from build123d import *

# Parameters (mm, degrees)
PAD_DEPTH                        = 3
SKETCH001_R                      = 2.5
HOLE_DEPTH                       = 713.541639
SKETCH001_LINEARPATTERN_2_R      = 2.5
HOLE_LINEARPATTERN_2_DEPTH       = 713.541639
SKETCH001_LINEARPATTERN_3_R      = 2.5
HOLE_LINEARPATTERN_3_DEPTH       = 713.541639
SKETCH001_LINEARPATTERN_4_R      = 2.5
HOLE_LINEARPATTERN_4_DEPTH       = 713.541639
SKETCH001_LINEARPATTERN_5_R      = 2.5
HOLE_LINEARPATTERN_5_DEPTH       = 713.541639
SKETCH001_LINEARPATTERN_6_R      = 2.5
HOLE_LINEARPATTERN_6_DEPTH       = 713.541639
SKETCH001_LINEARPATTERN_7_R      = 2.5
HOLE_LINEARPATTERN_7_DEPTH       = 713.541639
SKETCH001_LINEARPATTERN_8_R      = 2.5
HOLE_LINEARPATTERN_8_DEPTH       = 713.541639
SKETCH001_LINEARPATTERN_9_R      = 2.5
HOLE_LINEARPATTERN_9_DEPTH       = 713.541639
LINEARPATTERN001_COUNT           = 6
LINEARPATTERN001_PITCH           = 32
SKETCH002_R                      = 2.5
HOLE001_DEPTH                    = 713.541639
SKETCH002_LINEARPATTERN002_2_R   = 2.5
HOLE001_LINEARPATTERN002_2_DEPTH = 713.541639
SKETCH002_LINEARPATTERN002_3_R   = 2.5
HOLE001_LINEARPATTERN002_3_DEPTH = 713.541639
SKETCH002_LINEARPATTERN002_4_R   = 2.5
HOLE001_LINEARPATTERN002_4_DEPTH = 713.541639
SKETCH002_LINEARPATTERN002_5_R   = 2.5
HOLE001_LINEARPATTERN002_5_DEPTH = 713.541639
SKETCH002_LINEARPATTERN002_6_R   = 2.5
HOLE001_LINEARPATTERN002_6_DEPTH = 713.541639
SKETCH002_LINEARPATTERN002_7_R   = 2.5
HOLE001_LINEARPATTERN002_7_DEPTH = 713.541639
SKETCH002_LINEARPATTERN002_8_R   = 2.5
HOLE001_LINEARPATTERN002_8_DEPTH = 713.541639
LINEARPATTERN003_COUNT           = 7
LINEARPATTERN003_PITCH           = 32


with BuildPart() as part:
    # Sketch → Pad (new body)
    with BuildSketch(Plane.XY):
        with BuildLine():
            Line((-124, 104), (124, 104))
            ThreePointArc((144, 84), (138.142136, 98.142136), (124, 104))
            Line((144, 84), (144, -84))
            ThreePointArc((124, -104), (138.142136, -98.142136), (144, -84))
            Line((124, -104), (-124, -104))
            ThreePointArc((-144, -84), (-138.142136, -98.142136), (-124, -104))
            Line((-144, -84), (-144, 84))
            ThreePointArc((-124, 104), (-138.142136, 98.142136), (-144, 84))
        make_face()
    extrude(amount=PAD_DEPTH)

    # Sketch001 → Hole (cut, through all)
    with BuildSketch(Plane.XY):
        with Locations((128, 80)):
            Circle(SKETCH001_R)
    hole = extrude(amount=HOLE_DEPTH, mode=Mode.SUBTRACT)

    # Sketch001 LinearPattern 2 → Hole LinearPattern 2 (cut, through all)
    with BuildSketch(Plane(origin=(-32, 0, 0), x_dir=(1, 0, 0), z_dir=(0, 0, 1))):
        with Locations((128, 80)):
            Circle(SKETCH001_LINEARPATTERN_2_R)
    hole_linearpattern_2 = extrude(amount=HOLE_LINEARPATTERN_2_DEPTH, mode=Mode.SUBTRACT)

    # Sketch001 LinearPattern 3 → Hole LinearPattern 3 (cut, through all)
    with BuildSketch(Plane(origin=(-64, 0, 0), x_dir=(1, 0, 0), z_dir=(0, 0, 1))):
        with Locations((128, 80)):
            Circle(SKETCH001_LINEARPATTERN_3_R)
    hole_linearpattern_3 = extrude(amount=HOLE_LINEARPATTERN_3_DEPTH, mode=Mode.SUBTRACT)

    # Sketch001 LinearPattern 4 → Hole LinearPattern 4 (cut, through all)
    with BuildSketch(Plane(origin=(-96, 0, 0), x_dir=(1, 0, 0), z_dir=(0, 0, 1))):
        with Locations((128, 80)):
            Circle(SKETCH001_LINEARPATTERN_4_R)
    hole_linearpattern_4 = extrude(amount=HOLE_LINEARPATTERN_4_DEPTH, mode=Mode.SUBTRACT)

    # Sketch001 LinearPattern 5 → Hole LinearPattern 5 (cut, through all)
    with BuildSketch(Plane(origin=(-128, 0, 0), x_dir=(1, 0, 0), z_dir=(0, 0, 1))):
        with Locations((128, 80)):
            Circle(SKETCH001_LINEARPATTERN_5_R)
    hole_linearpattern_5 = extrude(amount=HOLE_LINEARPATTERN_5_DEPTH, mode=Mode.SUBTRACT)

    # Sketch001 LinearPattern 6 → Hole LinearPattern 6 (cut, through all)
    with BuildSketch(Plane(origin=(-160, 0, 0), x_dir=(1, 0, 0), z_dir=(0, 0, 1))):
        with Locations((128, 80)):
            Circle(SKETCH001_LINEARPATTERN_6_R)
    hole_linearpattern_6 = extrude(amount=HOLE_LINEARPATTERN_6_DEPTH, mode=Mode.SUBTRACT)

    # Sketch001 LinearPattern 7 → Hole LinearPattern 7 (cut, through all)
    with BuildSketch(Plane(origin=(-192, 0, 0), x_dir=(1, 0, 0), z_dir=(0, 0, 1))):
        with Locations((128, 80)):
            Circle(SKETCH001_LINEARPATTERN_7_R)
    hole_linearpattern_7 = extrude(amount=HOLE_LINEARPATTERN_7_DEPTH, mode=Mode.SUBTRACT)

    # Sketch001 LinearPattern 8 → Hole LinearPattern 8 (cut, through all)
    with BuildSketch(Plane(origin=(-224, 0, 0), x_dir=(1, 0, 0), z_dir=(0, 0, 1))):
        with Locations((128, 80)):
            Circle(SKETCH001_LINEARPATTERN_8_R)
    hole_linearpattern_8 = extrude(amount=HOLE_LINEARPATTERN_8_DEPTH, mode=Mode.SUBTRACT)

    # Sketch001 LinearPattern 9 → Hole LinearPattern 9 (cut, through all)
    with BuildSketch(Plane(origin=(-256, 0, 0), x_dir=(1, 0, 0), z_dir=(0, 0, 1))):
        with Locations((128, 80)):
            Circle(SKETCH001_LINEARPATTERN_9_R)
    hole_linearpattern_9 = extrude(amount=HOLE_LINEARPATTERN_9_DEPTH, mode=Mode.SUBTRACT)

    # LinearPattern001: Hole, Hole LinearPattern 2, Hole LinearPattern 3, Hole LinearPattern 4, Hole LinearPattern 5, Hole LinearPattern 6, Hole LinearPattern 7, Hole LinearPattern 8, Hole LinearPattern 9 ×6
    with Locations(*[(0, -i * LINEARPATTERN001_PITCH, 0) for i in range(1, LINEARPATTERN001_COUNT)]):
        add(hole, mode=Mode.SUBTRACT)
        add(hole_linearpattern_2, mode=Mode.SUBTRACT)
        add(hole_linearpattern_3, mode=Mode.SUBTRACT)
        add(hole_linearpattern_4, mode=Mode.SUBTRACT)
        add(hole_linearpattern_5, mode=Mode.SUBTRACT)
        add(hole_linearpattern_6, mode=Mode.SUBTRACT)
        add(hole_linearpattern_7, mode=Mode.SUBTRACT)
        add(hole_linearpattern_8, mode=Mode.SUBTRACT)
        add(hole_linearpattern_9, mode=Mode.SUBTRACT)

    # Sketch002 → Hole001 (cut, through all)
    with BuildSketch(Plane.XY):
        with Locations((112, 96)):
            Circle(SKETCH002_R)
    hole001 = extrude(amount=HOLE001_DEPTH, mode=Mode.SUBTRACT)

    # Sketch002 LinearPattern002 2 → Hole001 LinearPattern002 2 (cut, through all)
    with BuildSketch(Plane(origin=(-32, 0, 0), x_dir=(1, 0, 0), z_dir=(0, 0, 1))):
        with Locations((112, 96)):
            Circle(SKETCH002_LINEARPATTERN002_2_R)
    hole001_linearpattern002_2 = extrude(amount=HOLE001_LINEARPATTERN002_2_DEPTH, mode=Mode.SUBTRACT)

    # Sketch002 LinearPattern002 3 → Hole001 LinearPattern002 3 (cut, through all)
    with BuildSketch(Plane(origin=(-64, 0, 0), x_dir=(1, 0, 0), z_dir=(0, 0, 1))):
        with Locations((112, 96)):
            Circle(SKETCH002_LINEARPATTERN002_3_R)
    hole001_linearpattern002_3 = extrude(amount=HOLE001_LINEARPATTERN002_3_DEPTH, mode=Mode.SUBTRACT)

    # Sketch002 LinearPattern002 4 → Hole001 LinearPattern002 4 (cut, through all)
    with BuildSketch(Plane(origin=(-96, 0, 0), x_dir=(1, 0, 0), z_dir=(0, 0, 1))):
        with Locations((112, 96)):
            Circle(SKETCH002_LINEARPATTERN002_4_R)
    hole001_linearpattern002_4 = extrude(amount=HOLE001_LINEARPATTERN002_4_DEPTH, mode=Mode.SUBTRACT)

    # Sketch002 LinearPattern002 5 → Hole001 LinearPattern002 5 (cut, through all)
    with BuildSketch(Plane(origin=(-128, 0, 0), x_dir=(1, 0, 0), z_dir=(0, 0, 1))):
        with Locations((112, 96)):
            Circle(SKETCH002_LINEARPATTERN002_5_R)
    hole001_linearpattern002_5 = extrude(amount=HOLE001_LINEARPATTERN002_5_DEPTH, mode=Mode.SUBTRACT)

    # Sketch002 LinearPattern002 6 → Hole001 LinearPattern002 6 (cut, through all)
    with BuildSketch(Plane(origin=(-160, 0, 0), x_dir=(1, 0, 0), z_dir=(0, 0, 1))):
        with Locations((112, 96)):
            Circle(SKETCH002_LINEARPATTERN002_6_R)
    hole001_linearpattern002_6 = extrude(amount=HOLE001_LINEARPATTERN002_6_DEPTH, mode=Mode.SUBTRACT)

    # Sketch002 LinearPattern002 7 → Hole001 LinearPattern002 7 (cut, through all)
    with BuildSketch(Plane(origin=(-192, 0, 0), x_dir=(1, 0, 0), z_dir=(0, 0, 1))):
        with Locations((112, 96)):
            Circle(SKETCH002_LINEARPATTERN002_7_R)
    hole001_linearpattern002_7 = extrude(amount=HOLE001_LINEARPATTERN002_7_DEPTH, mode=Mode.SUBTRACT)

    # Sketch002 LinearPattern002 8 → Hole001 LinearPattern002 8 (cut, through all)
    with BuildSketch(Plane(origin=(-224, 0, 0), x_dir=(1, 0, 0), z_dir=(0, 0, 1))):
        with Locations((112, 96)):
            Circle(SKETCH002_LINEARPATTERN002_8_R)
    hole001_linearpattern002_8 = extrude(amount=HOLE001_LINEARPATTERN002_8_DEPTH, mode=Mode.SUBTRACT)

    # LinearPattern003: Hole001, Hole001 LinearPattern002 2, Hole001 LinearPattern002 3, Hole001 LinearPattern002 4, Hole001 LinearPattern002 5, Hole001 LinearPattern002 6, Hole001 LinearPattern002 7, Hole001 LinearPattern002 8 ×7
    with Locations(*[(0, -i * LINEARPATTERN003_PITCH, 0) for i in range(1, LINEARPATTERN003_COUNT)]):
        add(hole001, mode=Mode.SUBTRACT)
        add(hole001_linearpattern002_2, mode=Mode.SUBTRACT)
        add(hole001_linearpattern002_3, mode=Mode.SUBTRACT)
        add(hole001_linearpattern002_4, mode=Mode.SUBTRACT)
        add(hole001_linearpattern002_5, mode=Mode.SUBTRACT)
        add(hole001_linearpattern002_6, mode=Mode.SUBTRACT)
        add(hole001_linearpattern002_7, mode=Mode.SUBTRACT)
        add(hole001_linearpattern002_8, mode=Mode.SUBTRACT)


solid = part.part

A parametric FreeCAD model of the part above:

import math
import FreeCAD as App
import Part
import Sketcher
from FreeCAD import Vector
Q = App.Units.Quantity

doc = App.newDocument("Part")
body = doc.addObject("PartDesign::Body", "Body")

sketch1 = body.newObject("Sketcher::SketchObject", "Sketch")
sketch1.AttachmentSupport = (doc.getObject("XY_Plane"), [""])
sketch1.MapMode = "FlatFace"
sketch1.addGeometry([
    Part.LineSegment(Vector(124, 104, 0), Vector(-124, 104, 0)),
    Part.ArcOfCircle(Part.Circle(Vector(-124, 84, 0), Vector(0, 0, 1), 20), math.radians(90), math.radians(180)),
    Part.LineSegment(Vector(-144, 84, 0), Vector(-144, -84, 0)),
    Part.ArcOfCircle(Part.Circle(Vector(-124, -84, 0), Vector(0, 0, 1), 20), math.radians(180), math.radians(270)),
    Part.LineSegment(Vector(-124, -104, 0), Vector(124, -104, 0)),
    Part.ArcOfCircle(Part.Circle(Vector(124, -84, 0), Vector(0, 0, 1), 20), math.radians(-90), math.radians(0)),
    Part.LineSegment(Vector(144, -84, 0), Vector(144, 84, 0)),
    Part.ArcOfCircle(Part.Circle(Vector(124, 84, 0), Vector(0, 0, 1), 20), math.radians(0), math.radians(90)),
], False)
sketch1.addConstraint([
    Sketcher.Constraint("Tangent", 0, 2, 1, 1),
    Sketcher.Constraint("Tangent", 1, 2, 2, 1),
    Sketcher.Constraint("Tangent", 2, 2, 3, 1),
    Sketcher.Constraint("Tangent", 3, 2, 4, 1),
    Sketcher.Constraint("Tangent", 4, 2, 5, 1),
    Sketcher.Constraint("Tangent", 5, 2, 6, 1),
    Sketcher.Constraint("Tangent", 6, 2, 7, 1),
    Sketcher.Constraint("Tangent", 7, 2, 0, 1),
    Sketcher.Constraint("Horizontal", 0),
    Sketcher.Constraint("Vertical", 2),
    Sketcher.Constraint("Horizontal", 4),
    Sketcher.Constraint("Vertical", 6),
    Sketcher.Constraint("Equal", 1, 3),
    Sketcher.Constraint("Equal", 3, 5),
    Sketcher.Constraint("Equal", 5, 7),
    Sketcher.Constraint("Symmetric", 1, 3, 5, 3, -1, 1),
    Sketcher.Constraint("Radius", 1, Q("19.999999 mm")),
    Sketcher.Constraint("DistanceX", 0, 2, 0, 1, Q("248 mm")),
    Sketcher.Constraint("DistanceY", 2, 2, 2, 1, Q("168 mm")),
])
pad1 = body.newObject("PartDesign::Pad", "Pad")
pad1.Profile = sketch1
pad1.Length = 3

sketch2 = body.newObject("Sketcher::SketchObject", "Sketch001")
sketch2.AttachmentSupport = (doc.getObject("XY_Plane"), [""])
sketch2.MapMode = "FlatFace"
sketch2.addGeometry(Part.Circle(Vector(128, 80, 0), Vector(0, 0, 1), 2.5), False)
sketch2.addConstraint([
    Sketcher.Constraint("Diameter", 0, Q("5 mm")),
    Sketcher.Constraint("DistanceX", -1, 1, 0, 3, Q("128 mm")),
    Sketcher.Constraint("DistanceY", -1, 1, 0, 3, Q("80 mm")),
])
pocket1 = body.newObject("PartDesign::Pocket", "Pocket")
pocket1.Profile = sketch2
pocket1.Type = "ThroughAll"
pocket1.Reversed = True

sketch3 = body.newObject("Sketcher::SketchObject", "Sketch002")
sketch3.AttachmentSupport = (doc.getObject("XY_Plane"), [""])
sketch3.MapMode = "FlatFace"
sketch3.addGeometry(Part.Circle(Vector(96, 80, 0), Vector(0, 0, 1), 2.5), False)
sketch3.addConstraint([
    Sketcher.Constraint("Diameter", 0, Q("5 mm")),
    Sketcher.Constraint("DistanceX", -1, 1, 0, 3, Q("96 mm")),
    Sketcher.Constraint("DistanceY", -1, 1, 0, 3, Q("80 mm")),
])
pocket2 = body.newObject("PartDesign::Pocket", "Pocket001")
pocket2.Profile = sketch3
pocket2.Type = "ThroughAll"
pocket2.Reversed = True

sketch4 = body.newObject("Sketcher::SketchObject", "Sketch003")
sketch4.AttachmentSupport = (doc.getObject("XY_Plane"), [""])
sketch4.MapMode = "FlatFace"
sketch4.addGeometry(Part.Circle(Vector(64, 80, 0), Vector(0, 0, 1), 2.5), False)
sketch4.addConstraint([
    Sketcher.Constraint("Diameter", 0, Q("5 mm")),
    Sketcher.Constraint("DistanceX", -1, 1, 0, 3, Q("64 mm")),
    Sketcher.Constraint("DistanceY", -1, 1, 0, 3, Q("80 mm")),
])
pocket3 = body.newObject("PartDesign::Pocket", "Pocket002")
pocket3.Profile = sketch4
pocket3.Type = "ThroughAll"
pocket3.Reversed = True

sketch5 = body.newObject("Sketcher::SketchObject", "Sketch004")
sketch5.AttachmentSupport = (doc.getObject("XY_Plane"), [""])
sketch5.MapMode = "FlatFace"
sketch5.addGeometry(Part.Circle(Vector(32, 80, 0), Vector(0, 0, 1), 2.5), False)
sketch5.addConstraint([
    Sketcher.Constraint("Diameter", 0, Q("5 mm")),
    Sketcher.Constraint("DistanceX", -1, 1, 0, 3, Q("32 mm")),
    Sketcher.Constraint("DistanceY", -1, 1, 0, 3, Q("80 mm")),
])
pocket4 = body.newObject("PartDesign::Pocket", "Pocket003")
pocket4.Profile = sketch5
pocket4.Type = "ThroughAll"
pocket4.Reversed = True

sketch6 = body.newObject("Sketcher::SketchObject", "Sketch005")
sketch6.AttachmentSupport = (doc.getObject("XY_Plane"), [""])
sketch6.MapMode = "FlatFace"
sketch6.addGeometry(Part.Circle(Vector(0, 80, 0), Vector(0, 0, 1), 2.5), False)
sketch6.addConstraint([
    Sketcher.Constraint("PointOnObject", 0, 3, -2),
    Sketcher.Constraint("Diameter", 0, Q("5 mm")),
    Sketcher.Constraint("DistanceY", -1, 1, 0, 3, Q("80 mm")),
])
pocket5 = body.newObject("PartDesign::Pocket", "Pocket004")
pocket5.Profile = sketch6
pocket5.Type = "ThroughAll"
pocket5.Reversed = True

sketch7 = body.newObject("Sketcher::SketchObject", "Sketch006")
sketch7.AttachmentSupport = (doc.getObject("XY_Plane"), [""])
sketch7.MapMode = "FlatFace"
sketch7.addGeometry(Part.Circle(Vector(-32, 80, 0), Vector(0, 0, 1), 2.5), False)
sketch7.addConstraint([
    Sketcher.Constraint("Diameter", 0, Q("5 mm")),
    Sketcher.Constraint("DistanceX", 0, 3, -1, 1, Q("32 mm")),
    Sketcher.Constraint("DistanceY", -1, 1, 0, 3, Q("80 mm")),
])
pocket6 = body.newObject("PartDesign::Pocket", "Pocket005")
pocket6.Profile = sketch7
pocket6.Type = "ThroughAll"
pocket6.Reversed = True

sketch8 = body.newObject("Sketcher::SketchObject", "Sketch007")
sketch8.AttachmentSupport = (doc.getObject("XY_Plane"), [""])
sketch8.MapMode = "FlatFace"
sketch8.addGeometry(Part.Circle(Vector(-64, 80, 0), Vector(0, 0, 1), 2.5), False)
sketch8.addConstraint([
    Sketcher.Constraint("Diameter", 0, Q("5 mm")),
    Sketcher.Constraint("DistanceX", 0, 3, -1, 1, Q("64 mm")),
    Sketcher.Constraint("DistanceY", -1, 1, 0, 3, Q("80 mm")),
])
pocket7 = body.newObject("PartDesign::Pocket", "Pocket006")
pocket7.Profile = sketch8
pocket7.Type = "ThroughAll"
pocket7.Reversed = True

sketch9 = body.newObject("Sketcher::SketchObject", "Sketch008")
sketch9.AttachmentSupport = (doc.getObject("XY_Plane"), [""])
sketch9.MapMode = "FlatFace"
sketch9.addGeometry(Part.Circle(Vector(-96, 80, 0), Vector(0, 0, 1), 2.5), False)
sketch9.addConstraint([
    Sketcher.Constraint("Diameter", 0, Q("5 mm")),
    Sketcher.Constraint("DistanceX", 0, 3, -1, 1, Q("96 mm")),
    Sketcher.Constraint("DistanceY", -1, 1, 0, 3, Q("80 mm")),
])
pocket8 = body.newObject("PartDesign::Pocket", "Pocket007")
pocket8.Profile = sketch9
pocket8.Type = "ThroughAll"
pocket8.Reversed = True

sketch10 = body.newObject("Sketcher::SketchObject", "Sketch009")
sketch10.AttachmentSupport = (doc.getObject("XY_Plane"), [""])
sketch10.MapMode = "FlatFace"
sketch10.addGeometry(Part.Circle(Vector(-128, 80, 0), Vector(0, 0, 1), 2.5), False)
sketch10.addConstraint([
    Sketcher.Constraint("Diameter", 0, Q("5 mm")),
    Sketcher.Constraint("DistanceX", 0, 3, -1, 1, Q("128 mm")),
    Sketcher.Constraint("DistanceY", -1, 1, 0, 3, Q("80 mm")),
])
pocket9 = body.newObject("PartDesign::Pocket", "Pocket008")
pocket9.Profile = sketch10
pocket9.Type = "ThroughAll"
pocket9.Reversed = True
doc.recompute()

linearpattern = body.newObject("PartDesign::LinearPattern", "LinearPattern")
linearpattern.Originals = [pocket1, pocket2, pocket3, pocket4, pocket5, pocket6, pocket7, pocket8, pocket9]
linearpattern.Direction = (doc.getObject("Y_Axis"), [""])
linearpattern.Mode = "offset"
linearpattern.Offset = 32
linearpattern.Occurrences = 6
linearpattern.Reversed = True
body.Tip = linearpattern

sketch11 = body.newObject("Sketcher::SketchObject", "Sketch010")
sketch11.AttachmentSupport = (doc.getObject("XY_Plane"), [""])
sketch11.MapMode = "FlatFace"
sketch11.addGeometry(Part.Circle(Vector(112, 96, 0), Vector(0, 0, 1), 2.5), False)
sketch11.addConstraint([
    Sketcher.Constraint("Diameter", 0, Q("5 mm")),
    Sketcher.Constraint("DistanceX", -1, 1, 0, 3, Q("112 mm")),
    Sketcher.Constraint("DistanceY", -1, 1, 0, 3, Q("96 mm")),
])
pocket10 = body.newObject("PartDesign::Pocket", "Pocket009")
pocket10.Profile = sketch11
pocket10.Type = "ThroughAll"
pocket10.Reversed = True

sketch12 = body.newObject("Sketcher::SketchObject", "Sketch011")
sketch12.AttachmentSupport = (doc.getObject("XY_Plane"), [""])
sketch12.MapMode = "FlatFace"
sketch12.addGeometry(Part.Circle(Vector(80, 96, 0), Vector(0, 0, 1), 2.5), False)
sketch12.addConstraint([
    Sketcher.Constraint("Diameter", 0, Q("5 mm")),
    Sketcher.Constraint("DistanceX", -1, 1, 0, 3, Q("80 mm")),
    Sketcher.Constraint("DistanceY", -1, 1, 0, 3, Q("96 mm")),
])
pocket11 = body.newObject("PartDesign::Pocket", "Pocket010")
pocket11.Profile = sketch12
pocket11.Type = "ThroughAll"
pocket11.Reversed = True

sketch13 = body.newObject("Sketcher::SketchObject", "Sketch012")
sketch13.AttachmentSupport = (doc.getObject("XY_Plane"), [""])
sketch13.MapMode = "FlatFace"
sketch13.addGeometry(Part.Circle(Vector(48, 96, 0), Vector(0, 0, 1), 2.5), False)
sketch13.addConstraint([
    Sketcher.Constraint("Diameter", 0, Q("5 mm")),
    Sketcher.Constraint("DistanceX", -1, 1, 0, 3, Q("48 mm")),
    Sketcher.Constraint("DistanceY", -1, 1, 0, 3, Q("96 mm")),
])
pocket12 = body.newObject("PartDesign::Pocket", "Pocket011")
pocket12.Profile = sketch13
pocket12.Type = "ThroughAll"
pocket12.Reversed = True

sketch14 = body.newObject("Sketcher::SketchObject", "Sketch013")
sketch14.AttachmentSupport = (doc.getObject("XY_Plane"), [""])
sketch14.MapMode = "FlatFace"
sketch14.addGeometry(Part.Circle(Vector(16, 96, 0), Vector(0, 0, 1), 2.5), False)
sketch14.addConstraint([
    Sketcher.Constraint("Diameter", 0, Q("5 mm")),
    Sketcher.Constraint("DistanceX", -1, 1, 0, 3, Q("16 mm")),
    Sketcher.Constraint("DistanceY", -1, 1, 0, 3, Q("96 mm")),
])
pocket13 = body.newObject("PartDesign::Pocket", "Pocket012")
pocket13.Profile = sketch14
pocket13.Type = "ThroughAll"
pocket13.Reversed = True

sketch15 = body.newObject("Sketcher::SketchObject", "Sketch014")
sketch15.AttachmentSupport = (doc.getObject("XY_Plane"), [""])
sketch15.MapMode = "FlatFace"
sketch15.addGeometry(Part.Circle(Vector(-16, 96, 0), Vector(0, 0, 1), 2.5), False)
sketch15.addConstraint([
    Sketcher.Constraint("Diameter", 0, Q("5 mm")),
    Sketcher.Constraint("DistanceX", 0, 3, -1, 1, Q("16 mm")),
    Sketcher.Constraint("DistanceY", -1, 1, 0, 3, Q("96 mm")),
])
pocket14 = body.newObject("PartDesign::Pocket", "Pocket013")
pocket14.Profile = sketch15
pocket14.Type = "ThroughAll"
pocket14.Reversed = True

sketch16 = body.newObject("Sketcher::SketchObject", "Sketch015")
sketch16.AttachmentSupport = (doc.getObject("XY_Plane"), [""])
sketch16.MapMode = "FlatFace"
sketch16.addGeometry(Part.Circle(Vector(-48, 96, 0), Vector(0, 0, 1), 2.5), False)
sketch16.addConstraint([
    Sketcher.Constraint("Diameter", 0, Q("5 mm")),
    Sketcher.Constraint("DistanceX", 0, 3, -1, 1, Q("48 mm")),
    Sketcher.Constraint("DistanceY", -1, 1, 0, 3, Q("96 mm")),
])
pocket15 = body.newObject("PartDesign::Pocket", "Pocket014")
pocket15.Profile = sketch16
pocket15.Type = "ThroughAll"
pocket15.Reversed = True

sketch17 = body.newObject("Sketcher::SketchObject", "Sketch016")
sketch17.AttachmentSupport = (doc.getObject("XY_Plane"), [""])
sketch17.MapMode = "FlatFace"
sketch17.addGeometry(Part.Circle(Vector(-80, 96, 0), Vector(0, 0, 1), 2.5), False)
sketch17.addConstraint([
    Sketcher.Constraint("Diameter", 0, Q("5 mm")),
    Sketcher.Constraint("DistanceX", 0, 3, -1, 1, Q("80 mm")),
    Sketcher.Constraint("DistanceY", -1, 1, 0, 3, Q("96 mm")),
])
pocket16 = body.newObject("PartDesign::Pocket", "Pocket015")
pocket16.Profile = sketch17
pocket16.Type = "ThroughAll"
pocket16.Reversed = True

sketch18 = body.newObject("Sketcher::SketchObject", "Sketch017")
sketch18.AttachmentSupport = (doc.getObject("XY_Plane"), [""])
sketch18.MapMode = "FlatFace"
sketch18.addGeometry(Part.Circle(Vector(-112, 96, 0), Vector(0, 0, 1), 2.5), False)
sketch18.addConstraint([
    Sketcher.Constraint("Diameter", 0, Q("5 mm")),
    Sketcher.Constraint("DistanceX", 0, 3, -1, 1, Q("112 mm")),
    Sketcher.Constraint("DistanceY", -1, 1, 0, 3, Q("96 mm")),
])
pocket17 = body.newObject("PartDesign::Pocket", "Pocket016")
pocket17.Profile = sketch18
pocket17.Type = "ThroughAll"
pocket17.Reversed = True
doc.recompute()

linearpattern2 = body.newObject("PartDesign::LinearPattern", "LinearPattern001")
linearpattern2.Originals = [pocket10, pocket11, pocket12, pocket13, pocket14, pocket15, pocket16, pocket17]
linearpattern2.Direction = (doc.getObject("Y_Axis"), [""])
linearpattern2.Mode = "offset"
linearpattern2.Offset = 32
linearpattern2.Occurrences = 7
linearpattern2.Reversed = True
body.Tip = linearpattern2

doc.recompute()
